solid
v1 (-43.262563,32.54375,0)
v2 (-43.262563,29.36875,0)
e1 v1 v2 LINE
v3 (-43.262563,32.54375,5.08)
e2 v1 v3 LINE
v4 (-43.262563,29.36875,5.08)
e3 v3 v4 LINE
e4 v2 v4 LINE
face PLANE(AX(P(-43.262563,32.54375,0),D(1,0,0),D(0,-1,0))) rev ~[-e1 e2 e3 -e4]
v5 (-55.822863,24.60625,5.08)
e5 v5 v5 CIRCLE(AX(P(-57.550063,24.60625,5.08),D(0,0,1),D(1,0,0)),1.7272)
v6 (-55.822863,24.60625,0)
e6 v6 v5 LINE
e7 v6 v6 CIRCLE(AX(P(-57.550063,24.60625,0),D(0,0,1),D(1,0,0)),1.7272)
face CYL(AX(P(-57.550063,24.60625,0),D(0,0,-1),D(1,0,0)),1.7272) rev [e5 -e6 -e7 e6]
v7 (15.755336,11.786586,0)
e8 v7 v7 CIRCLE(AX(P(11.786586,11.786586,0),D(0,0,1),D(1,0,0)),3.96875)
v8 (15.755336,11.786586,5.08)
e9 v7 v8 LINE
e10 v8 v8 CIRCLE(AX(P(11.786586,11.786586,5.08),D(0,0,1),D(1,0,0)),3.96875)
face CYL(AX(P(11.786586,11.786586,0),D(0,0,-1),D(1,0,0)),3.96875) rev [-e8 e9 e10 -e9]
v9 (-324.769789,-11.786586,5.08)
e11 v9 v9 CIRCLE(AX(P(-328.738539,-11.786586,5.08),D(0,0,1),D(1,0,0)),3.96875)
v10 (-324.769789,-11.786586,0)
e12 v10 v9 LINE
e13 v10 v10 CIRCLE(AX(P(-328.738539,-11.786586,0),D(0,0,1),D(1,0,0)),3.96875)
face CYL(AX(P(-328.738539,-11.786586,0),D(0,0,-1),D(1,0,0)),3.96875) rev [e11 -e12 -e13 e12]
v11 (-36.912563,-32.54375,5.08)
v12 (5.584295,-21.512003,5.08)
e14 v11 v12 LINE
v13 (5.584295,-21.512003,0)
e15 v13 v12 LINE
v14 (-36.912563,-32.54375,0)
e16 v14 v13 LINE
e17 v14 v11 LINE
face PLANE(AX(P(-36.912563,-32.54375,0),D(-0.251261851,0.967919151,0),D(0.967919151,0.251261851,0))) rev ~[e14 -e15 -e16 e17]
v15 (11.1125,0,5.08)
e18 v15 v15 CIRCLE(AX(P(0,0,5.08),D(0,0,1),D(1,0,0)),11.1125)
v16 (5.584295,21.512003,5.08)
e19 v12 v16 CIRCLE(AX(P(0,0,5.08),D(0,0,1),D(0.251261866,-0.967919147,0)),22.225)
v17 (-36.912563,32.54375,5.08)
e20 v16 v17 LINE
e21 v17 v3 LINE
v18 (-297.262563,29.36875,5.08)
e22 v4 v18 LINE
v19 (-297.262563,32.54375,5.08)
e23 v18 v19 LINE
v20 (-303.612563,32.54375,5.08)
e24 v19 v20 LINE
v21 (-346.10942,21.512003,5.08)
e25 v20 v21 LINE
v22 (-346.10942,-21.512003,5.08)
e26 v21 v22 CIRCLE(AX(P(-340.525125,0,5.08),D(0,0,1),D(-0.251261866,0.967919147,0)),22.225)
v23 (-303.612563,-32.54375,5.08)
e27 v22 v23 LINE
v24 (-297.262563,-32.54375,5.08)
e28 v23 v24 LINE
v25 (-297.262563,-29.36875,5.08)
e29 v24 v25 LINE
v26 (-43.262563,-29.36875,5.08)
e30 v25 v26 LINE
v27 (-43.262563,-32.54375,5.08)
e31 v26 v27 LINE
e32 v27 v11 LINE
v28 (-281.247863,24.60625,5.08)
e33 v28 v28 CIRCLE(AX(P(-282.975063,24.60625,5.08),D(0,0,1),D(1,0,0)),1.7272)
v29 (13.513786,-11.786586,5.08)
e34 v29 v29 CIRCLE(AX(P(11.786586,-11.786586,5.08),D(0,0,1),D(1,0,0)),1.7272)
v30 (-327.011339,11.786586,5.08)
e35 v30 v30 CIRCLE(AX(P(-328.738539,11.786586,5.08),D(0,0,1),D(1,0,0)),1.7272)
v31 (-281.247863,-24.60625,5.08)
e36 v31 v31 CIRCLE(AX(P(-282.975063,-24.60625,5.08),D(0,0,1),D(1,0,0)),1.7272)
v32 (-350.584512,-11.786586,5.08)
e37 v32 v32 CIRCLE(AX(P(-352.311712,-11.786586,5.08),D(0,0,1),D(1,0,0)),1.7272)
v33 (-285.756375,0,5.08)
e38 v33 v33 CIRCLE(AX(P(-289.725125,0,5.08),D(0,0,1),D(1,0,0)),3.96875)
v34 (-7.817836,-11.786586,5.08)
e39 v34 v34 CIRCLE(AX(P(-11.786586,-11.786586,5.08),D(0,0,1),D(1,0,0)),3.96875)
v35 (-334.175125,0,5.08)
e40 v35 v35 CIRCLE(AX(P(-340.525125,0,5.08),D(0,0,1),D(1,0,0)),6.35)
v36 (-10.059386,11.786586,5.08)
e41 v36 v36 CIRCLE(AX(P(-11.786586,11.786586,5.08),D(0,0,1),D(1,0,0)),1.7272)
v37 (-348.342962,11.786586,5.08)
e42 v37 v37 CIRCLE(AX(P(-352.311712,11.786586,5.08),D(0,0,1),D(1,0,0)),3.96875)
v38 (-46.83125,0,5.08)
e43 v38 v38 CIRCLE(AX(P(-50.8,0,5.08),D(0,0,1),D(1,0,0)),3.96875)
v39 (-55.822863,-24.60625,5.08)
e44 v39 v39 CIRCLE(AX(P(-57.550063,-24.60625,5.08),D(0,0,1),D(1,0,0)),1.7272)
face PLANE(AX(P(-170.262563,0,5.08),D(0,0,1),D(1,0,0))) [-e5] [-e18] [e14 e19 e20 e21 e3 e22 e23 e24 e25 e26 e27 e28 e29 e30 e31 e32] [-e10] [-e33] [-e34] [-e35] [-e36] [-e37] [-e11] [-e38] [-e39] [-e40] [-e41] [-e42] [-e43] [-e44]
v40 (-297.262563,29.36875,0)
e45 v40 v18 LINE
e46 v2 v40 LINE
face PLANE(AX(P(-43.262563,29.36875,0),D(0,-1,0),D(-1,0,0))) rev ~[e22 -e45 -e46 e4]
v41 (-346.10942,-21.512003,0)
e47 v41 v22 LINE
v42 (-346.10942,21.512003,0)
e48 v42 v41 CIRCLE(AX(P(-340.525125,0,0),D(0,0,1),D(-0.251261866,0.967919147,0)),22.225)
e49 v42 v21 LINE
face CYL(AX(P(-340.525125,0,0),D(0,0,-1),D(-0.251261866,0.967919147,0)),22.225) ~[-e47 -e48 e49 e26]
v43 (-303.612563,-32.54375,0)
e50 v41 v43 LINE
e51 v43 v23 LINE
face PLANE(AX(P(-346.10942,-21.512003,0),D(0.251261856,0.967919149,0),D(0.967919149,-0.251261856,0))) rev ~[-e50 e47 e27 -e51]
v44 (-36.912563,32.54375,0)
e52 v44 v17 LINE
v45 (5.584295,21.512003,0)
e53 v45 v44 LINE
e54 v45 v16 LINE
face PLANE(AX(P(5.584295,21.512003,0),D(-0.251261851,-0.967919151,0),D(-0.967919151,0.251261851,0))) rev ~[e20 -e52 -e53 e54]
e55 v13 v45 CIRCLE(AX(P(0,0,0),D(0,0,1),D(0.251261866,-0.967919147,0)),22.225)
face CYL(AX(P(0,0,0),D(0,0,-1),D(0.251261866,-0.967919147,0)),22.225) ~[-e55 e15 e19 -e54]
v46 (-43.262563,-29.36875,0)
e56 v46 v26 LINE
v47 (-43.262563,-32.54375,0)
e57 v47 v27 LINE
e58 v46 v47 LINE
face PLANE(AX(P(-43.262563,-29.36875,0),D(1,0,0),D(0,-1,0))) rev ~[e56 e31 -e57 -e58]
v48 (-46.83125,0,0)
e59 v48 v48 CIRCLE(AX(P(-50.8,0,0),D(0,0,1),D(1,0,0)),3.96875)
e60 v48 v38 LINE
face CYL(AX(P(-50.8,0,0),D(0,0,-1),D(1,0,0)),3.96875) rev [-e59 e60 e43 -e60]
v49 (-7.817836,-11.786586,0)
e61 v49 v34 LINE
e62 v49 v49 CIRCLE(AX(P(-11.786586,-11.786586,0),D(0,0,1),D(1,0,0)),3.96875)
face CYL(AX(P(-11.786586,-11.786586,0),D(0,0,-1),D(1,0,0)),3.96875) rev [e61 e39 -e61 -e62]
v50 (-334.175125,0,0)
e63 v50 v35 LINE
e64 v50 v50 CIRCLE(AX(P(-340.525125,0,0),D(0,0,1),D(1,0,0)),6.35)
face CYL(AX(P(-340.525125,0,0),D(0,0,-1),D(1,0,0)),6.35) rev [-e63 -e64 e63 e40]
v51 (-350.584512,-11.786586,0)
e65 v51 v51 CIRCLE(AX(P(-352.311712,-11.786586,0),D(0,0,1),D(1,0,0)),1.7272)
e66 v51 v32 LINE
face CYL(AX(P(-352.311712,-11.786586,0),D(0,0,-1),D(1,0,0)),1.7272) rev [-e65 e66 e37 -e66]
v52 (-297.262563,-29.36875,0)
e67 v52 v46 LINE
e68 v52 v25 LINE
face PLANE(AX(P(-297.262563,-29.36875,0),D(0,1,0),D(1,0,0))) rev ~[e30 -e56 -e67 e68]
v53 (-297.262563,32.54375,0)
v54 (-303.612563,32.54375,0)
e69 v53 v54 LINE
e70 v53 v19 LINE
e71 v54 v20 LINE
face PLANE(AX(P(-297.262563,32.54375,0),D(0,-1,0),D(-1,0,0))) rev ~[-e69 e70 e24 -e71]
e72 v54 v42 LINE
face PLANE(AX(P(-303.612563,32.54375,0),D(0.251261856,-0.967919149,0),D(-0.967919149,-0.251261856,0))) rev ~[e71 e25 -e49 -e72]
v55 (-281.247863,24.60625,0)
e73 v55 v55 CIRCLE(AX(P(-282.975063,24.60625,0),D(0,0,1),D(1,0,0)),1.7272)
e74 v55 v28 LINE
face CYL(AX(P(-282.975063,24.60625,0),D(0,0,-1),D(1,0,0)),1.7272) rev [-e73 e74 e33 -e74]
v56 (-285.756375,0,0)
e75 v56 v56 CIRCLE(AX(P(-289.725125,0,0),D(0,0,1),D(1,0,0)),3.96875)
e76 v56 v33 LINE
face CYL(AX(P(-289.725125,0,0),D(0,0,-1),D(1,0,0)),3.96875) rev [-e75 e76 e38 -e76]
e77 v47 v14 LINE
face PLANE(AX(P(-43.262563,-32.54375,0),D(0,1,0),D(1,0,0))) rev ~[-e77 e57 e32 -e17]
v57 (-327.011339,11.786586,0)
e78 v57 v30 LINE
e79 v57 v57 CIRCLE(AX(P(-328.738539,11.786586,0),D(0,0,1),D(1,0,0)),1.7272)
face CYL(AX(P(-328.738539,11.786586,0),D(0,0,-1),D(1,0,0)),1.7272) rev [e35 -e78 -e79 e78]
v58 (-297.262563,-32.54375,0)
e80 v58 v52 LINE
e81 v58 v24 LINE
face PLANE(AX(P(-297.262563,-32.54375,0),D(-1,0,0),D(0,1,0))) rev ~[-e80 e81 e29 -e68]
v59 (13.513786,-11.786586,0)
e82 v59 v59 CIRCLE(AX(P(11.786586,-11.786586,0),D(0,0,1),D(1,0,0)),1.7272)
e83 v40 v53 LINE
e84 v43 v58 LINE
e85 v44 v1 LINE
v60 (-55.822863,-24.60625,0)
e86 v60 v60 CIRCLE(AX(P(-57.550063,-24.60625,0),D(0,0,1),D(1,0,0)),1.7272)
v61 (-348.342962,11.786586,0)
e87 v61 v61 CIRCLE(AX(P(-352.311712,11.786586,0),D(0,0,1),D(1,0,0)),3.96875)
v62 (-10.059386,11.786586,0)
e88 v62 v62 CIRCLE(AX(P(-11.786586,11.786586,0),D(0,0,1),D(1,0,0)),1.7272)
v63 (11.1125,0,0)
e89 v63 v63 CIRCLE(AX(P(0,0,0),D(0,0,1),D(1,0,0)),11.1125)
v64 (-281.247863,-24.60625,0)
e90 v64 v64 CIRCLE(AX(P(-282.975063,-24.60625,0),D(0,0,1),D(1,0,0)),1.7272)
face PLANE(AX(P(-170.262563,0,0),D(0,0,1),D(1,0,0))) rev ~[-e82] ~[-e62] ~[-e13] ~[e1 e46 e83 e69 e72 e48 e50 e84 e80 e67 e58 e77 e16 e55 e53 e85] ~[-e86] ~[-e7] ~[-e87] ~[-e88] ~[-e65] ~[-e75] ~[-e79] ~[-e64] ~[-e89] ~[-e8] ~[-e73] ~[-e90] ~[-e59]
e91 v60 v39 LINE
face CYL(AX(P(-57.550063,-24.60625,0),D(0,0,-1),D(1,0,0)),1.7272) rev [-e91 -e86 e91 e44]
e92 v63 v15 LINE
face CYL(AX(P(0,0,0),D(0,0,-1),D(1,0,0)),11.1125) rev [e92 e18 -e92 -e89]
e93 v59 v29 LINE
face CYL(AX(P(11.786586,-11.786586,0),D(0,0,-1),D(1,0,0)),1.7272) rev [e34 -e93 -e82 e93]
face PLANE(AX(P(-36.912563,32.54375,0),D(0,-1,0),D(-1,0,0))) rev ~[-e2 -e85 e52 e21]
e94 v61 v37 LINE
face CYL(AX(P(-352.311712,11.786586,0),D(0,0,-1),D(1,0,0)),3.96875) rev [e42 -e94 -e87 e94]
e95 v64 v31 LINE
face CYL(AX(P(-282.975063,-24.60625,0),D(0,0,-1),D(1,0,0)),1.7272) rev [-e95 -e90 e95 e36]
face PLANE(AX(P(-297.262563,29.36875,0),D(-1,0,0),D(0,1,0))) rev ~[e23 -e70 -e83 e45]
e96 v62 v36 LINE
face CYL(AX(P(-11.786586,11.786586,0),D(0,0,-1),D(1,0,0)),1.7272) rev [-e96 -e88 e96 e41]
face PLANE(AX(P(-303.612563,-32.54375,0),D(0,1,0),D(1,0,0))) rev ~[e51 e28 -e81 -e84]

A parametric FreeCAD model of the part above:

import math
import FreeCAD as App
import Part
import Sketcher
from FreeCAD import Vector
Q = App.Units.Quantity

doc = App.newDocument("Part")
body = doc.addObject("PartDesign::Body", "Body")

# Sketch on XY plane
sketch1 = doc.addObject("Sketcher::SketchObject", "Sketch")
body.addObject(sketch1)
sketch1.AttachmentSupport = (doc.XY_Plane, [""])
sketch1.MapMode = "FlatFace"
sketch1.addGeometry([
    Part.LineSegment(Vector(-303.6, 32.5, 0), Vector(-346.1, 21.5, 0)),  # 0
    Part.ArcOfCircle(Part.Circle(Vector(-340.5, 0, 0), Vector(0, 0, 1), 22.2), math.radians(105), math.radians(255)),  # 1
    Part.LineSegment(Vector(-346.1, -21.5, 0), Vector(-303.6, -32.5, 0)),  # 2
    Part.LineSegment(Vector(-303.6, -32.5, 0), Vector(-297.3, -32.5, 0)),  # 3
    Part.LineSegment(Vector(-297.3, -32.5, 0), Vector(-297.3, -29.4, 0)),  # 4
    Part.LineSegment(Vector(-297.3, -29.4, 0), Vector(-43.3, -29.4, 0)),  # 5
    Part.LineSegment(Vector(-43.3, -29.4, 0), Vector(-43.3, -32.5, 0)),  # 6
    Part.LineSegment(Vector(-43.3, -32.5, 0), Vector(-36.9, -32.5, 0)),  # 7
    Part.LineSegment(Vector(-36.9, -32.5, 0), Vector(5.6, -21.5, 0)),  # 8
    Part.ArcOfCircle(Part.Circle(Vector(0, 0, 0), Vector(0, 0, 1), 22.2), math.radians(-75), math.radians(75)),  # 9
    Part.LineSegment(Vector(5.6, 21.5, 0), Vector(-36.9, 32.5, 0)),  # 10
    Part.LineSegment(Vector(-36.9, 32.5, 0), Vector(-43.3, 32.5, 0)),  # 11
    Part.LineSegment(Vector(-43.3, 32.5, 0), Vector(-43.3, 29.4, 0)),  # 12
    Part.LineSegment(Vector(-43.3, 29.4, 0), Vector(-297.3, 29.4, 0)),  # 13
    Part.LineSegment(Vector(-297.3, 29.4, 0), Vector(-297.3, 32.5, 0)),  # 14
    Part.LineSegment(Vector(-297.3, 32.5, 0), Vector(-303.6, 32.5, 0)),  # 15
    Part.Circle(Vector(-283, -24.6, 0), Vector(0, 0, 1), 1.7),  # 16
    Part.Circle(Vector(-352.3, -11.8, 0), Vector(0, 0, 1), 1.7),  # 17
    Part.Circle(Vector(-328.7, -11.8, 0), Vector(0, 0, 1), 4),  # 18
    Part.Circle(Vector(-57.6, -24.6, 0), Vector(0, 0, 1), 1.7),  # 19
    Part.Circle(Vector(-11.8, -11.8, 0), Vector(0, 0, 1), 4),  # 20
    Part.Circle(Vector(11.8, -11.8, 0), Vector(0, 0, 1), 1.7),  # 21
    Part.Circle(Vector(-340.5, 0, 0), Vector(0, 0, 1), 6.3),  # 22
    Part.Circle(Vector(-289.7, 0, 0), Vector(0, 0, 1), 4),  # 23
    Part.Circle(Vector(-352.3, 11.8, 0), Vector(0, 0, 1), 4),  # 24
    Part.Circle(Vector(-328.7, 11.8, 0), Vector(0, 0, 1), 1.7),  # 25
    Part.Circle(Vector(-283, 24.6, 0), Vector(0, 0, 1), 1.7),  # 26
    Part.Circle(Vector(-50.8, 0, 0), Vector(0, 0, 1), 4),  # 27
    Part.Circle(Vector(0, 0, 0), Vector(0, 0, 1), 11.1),  # 28
    Part.Circle(Vector(-11.8, 11.8, 0), Vector(0, 0, 1), 1.7),  # 29
    Part.Circle(Vector(11.8, 11.8, 0), Vector(0, 0, 1), 4),  # 30
    Part.Circle(Vector(-57.6, 24.6, 0), Vector(0, 0, 1), 1.7),  # 31
], False)
sketch1.addConstraint([
    Sketcher.Constraint("Tangent", 0, 2, 1, 1),
    Sketcher.Constraint("Tangent", 1, 2, 2, 1),
    Sketcher.Constraint("Coincident", 2, 2, 3, 1),
    Sketcher.Constraint("Coincident", 3, 2, 4, 1),
    Sketcher.Constraint("Coincident", 4, 2, 5, 1),
    Sketcher.Constraint("Coincident", 5, 2, 6, 1),
    Sketcher.Constraint("Coincident", 6, 2, 7, 1),
    Sketcher.Constraint("Coincident", 7, 2, 8, 1),
    Sketcher.Constraint("Tangent", 8, 2, 9, 1),
    Sketcher.Constraint("Tangent", 9, 2, 10, 1),
    Sketcher.Constraint("Coincident", 10, 2, 11, 1),
    Sketcher.Constraint("Coincident", 11, 2, 12, 1),
    Sketcher.Constraint("Coincident", 12, 2, 13, 1),
    Sketcher.Constraint("Coincident", 13, 2, 14, 1),
    Sketcher.Constraint("Coincident", 14, 2, 15, 1),
    Sketcher.Constraint("Coincident", 15, 2, 0, 1),
    Sketcher.Constraint("Horizontal", 3),
    Sketcher.Constraint("Vertical", 4),
    Sketcher.Constraint("Horizontal", 5),
    Sketcher.Constraint("Vertical", 6),
    Sketcher.Constraint("Horizontal", 7),
    Sketcher.Constraint("Horizontal", 11),
    Sketcher.Constraint("Vertical", 12),
    Sketcher.Constraint("Horizontal", 13),
    Sketcher.Constraint("Vertical", 14),
    Sketcher.Constraint("Horizontal", 15),
    Sketcher.Constraint("Coincident", 9, 3, -1, 1),
    Sketcher.Constraint("Coincident", 28, 3, -1, 1),
    Sketcher.Constraint("Coincident", 22, 3, 1, 3),
    Sketcher.Constraint("Equal", 1, 9),
    Sketcher.Constraint("Equal", 16, 17),
    Sketcher.Constraint("Equal", 17, 19),
    Sketcher.Constraint("Equal", 18, 20),
    Sketcher.Constraint("Equal", 19, 21),
    Sketcher.Constraint("Equal", 20, 23),
    Sketcher.Constraint("Equal", 23, 24),
    Sketcher.Constraint("Equal", 21, 25),
    Sketcher.Constraint("Equal", 25, 26),
    Sketcher.Constraint("Equal", 24, 27),
    Sketcher.Constraint("Equal", 26, 29),
    Sketcher.Constraint("Equal", 27, 30),
    Sketcher.Constraint("Equal", 29, 31),
    Sketcher.Constraint("Symmetric", 21, 3, 29, 3, -1, 1),
    Sketcher.Constraint("Symmetric", 20, 3, 30, 3, -1, 1),
    Sketcher.Constraint("Symmetric", 20, 3, 21, 3, -2),
    Sketcher.Constraint("Symmetric", 17, 3, 24, 3, -1),
    Sketcher.Constraint("Symmetric", 18, 3, 25, 3, -1),
    Sketcher.Constraint("Symmetric", 16, 3, 26, 3, -1),
    Sketcher.Constraint("Symmetric", 19, 3, 31, 3, -1),
    Sketcher.Constraint("Symmetric", 0, 2, 1, 2, -1),
    Sketcher.Constraint("Symmetric", 7, 2, 10, 2, -1),
    Sketcher.Constraint("Symmetric", 5, 2, 12, 2, -1),
    Sketcher.Constraint("Symmetric", 3, 2, 14, 2, -1),
    Sketcher.Constraint("PointOnObject", 23, 3, -1),
    Sketcher.Constraint("PointOnObject", 27, 3, -1),
    Sketcher.Constraint("Parallel", 0, 8),
    Sketcher.Constraint("Horizontal", 17, 3, 18, 3),
    Sketcher.Constraint("Horizontal", 16, 3, 19, 3),
    Sketcher.Constraint("Horizontal", 18, 3, 20, 3),
    Sketcher.Constraint("Horizontal", 3, 2, 6, 2),
    Sketcher.Constraint("Equal", 3, 7),
    Sketcher.Constraint("Diameter", 22, Q("0.5 in")),
    Sketcher.Constraint("DistanceX", 5, 1, 5, 2, Q("10 in")),
    Sketcher.Constraint("Diameter", 16, Q("0.136 in")),
    Sketcher.Constraint("Diameter", 18, Q("0.3125 in")),
    Sketcher.Constraint("Diameter", 28, Q("0.875 in")),
    Sketcher.Constraint("DistanceX", 27, 3, -1, 1, Q("2 in")),
    Sketcher.Constraint("Radius", 1, Q("0.875 in")),
    Sketcher.Constraint("DistanceX", 22, 3, 23, 3, Q("2 in")),
    Sketcher.Constraint("DistanceX", 3, 1, 3, 2, Q("0.25 in")),
    Sketcher.Constraint("DistanceY", 4, 1, 4, 2, Q("0.125 in")),
    Sketcher.Constraint("DistanceY", 16, 3, -1, 1, Q("0.96875 in")),
    Sketcher.Constraint("DistanceY", 2, 2, -1, 1, Q("1.28125 in")),
    Sketcher.Constraint("DistanceX", 16, 3, 19, 3, Q("8.875 in")),
    Sketcher.Constraint("DistanceX", 2, 2, 16, 3, Q("0.8125 in")),
    Sketcher.Constraint("Distance", 0, 43.905379),
    Sketcher.Constraint("DistanceX", 17, 3, -1, 1, 352.311712),
    Sketcher.Constraint("DistanceX", 18, 3, -1, 1, 328.738539),
    Sketcher.Constraint("DistanceX", 1, 3, 20, 3, 328.738539),
    Sketcher.Constraint("DistanceY", 17, 3, 24, 3, 23.573172),
])
pad1 = doc.addObject("PartDesign::Pad", "Pad")
body.addObject(pad1)
pad1.Profile = sketch1
pad1.Length = Q("0.2 in")

doc.recompute()
